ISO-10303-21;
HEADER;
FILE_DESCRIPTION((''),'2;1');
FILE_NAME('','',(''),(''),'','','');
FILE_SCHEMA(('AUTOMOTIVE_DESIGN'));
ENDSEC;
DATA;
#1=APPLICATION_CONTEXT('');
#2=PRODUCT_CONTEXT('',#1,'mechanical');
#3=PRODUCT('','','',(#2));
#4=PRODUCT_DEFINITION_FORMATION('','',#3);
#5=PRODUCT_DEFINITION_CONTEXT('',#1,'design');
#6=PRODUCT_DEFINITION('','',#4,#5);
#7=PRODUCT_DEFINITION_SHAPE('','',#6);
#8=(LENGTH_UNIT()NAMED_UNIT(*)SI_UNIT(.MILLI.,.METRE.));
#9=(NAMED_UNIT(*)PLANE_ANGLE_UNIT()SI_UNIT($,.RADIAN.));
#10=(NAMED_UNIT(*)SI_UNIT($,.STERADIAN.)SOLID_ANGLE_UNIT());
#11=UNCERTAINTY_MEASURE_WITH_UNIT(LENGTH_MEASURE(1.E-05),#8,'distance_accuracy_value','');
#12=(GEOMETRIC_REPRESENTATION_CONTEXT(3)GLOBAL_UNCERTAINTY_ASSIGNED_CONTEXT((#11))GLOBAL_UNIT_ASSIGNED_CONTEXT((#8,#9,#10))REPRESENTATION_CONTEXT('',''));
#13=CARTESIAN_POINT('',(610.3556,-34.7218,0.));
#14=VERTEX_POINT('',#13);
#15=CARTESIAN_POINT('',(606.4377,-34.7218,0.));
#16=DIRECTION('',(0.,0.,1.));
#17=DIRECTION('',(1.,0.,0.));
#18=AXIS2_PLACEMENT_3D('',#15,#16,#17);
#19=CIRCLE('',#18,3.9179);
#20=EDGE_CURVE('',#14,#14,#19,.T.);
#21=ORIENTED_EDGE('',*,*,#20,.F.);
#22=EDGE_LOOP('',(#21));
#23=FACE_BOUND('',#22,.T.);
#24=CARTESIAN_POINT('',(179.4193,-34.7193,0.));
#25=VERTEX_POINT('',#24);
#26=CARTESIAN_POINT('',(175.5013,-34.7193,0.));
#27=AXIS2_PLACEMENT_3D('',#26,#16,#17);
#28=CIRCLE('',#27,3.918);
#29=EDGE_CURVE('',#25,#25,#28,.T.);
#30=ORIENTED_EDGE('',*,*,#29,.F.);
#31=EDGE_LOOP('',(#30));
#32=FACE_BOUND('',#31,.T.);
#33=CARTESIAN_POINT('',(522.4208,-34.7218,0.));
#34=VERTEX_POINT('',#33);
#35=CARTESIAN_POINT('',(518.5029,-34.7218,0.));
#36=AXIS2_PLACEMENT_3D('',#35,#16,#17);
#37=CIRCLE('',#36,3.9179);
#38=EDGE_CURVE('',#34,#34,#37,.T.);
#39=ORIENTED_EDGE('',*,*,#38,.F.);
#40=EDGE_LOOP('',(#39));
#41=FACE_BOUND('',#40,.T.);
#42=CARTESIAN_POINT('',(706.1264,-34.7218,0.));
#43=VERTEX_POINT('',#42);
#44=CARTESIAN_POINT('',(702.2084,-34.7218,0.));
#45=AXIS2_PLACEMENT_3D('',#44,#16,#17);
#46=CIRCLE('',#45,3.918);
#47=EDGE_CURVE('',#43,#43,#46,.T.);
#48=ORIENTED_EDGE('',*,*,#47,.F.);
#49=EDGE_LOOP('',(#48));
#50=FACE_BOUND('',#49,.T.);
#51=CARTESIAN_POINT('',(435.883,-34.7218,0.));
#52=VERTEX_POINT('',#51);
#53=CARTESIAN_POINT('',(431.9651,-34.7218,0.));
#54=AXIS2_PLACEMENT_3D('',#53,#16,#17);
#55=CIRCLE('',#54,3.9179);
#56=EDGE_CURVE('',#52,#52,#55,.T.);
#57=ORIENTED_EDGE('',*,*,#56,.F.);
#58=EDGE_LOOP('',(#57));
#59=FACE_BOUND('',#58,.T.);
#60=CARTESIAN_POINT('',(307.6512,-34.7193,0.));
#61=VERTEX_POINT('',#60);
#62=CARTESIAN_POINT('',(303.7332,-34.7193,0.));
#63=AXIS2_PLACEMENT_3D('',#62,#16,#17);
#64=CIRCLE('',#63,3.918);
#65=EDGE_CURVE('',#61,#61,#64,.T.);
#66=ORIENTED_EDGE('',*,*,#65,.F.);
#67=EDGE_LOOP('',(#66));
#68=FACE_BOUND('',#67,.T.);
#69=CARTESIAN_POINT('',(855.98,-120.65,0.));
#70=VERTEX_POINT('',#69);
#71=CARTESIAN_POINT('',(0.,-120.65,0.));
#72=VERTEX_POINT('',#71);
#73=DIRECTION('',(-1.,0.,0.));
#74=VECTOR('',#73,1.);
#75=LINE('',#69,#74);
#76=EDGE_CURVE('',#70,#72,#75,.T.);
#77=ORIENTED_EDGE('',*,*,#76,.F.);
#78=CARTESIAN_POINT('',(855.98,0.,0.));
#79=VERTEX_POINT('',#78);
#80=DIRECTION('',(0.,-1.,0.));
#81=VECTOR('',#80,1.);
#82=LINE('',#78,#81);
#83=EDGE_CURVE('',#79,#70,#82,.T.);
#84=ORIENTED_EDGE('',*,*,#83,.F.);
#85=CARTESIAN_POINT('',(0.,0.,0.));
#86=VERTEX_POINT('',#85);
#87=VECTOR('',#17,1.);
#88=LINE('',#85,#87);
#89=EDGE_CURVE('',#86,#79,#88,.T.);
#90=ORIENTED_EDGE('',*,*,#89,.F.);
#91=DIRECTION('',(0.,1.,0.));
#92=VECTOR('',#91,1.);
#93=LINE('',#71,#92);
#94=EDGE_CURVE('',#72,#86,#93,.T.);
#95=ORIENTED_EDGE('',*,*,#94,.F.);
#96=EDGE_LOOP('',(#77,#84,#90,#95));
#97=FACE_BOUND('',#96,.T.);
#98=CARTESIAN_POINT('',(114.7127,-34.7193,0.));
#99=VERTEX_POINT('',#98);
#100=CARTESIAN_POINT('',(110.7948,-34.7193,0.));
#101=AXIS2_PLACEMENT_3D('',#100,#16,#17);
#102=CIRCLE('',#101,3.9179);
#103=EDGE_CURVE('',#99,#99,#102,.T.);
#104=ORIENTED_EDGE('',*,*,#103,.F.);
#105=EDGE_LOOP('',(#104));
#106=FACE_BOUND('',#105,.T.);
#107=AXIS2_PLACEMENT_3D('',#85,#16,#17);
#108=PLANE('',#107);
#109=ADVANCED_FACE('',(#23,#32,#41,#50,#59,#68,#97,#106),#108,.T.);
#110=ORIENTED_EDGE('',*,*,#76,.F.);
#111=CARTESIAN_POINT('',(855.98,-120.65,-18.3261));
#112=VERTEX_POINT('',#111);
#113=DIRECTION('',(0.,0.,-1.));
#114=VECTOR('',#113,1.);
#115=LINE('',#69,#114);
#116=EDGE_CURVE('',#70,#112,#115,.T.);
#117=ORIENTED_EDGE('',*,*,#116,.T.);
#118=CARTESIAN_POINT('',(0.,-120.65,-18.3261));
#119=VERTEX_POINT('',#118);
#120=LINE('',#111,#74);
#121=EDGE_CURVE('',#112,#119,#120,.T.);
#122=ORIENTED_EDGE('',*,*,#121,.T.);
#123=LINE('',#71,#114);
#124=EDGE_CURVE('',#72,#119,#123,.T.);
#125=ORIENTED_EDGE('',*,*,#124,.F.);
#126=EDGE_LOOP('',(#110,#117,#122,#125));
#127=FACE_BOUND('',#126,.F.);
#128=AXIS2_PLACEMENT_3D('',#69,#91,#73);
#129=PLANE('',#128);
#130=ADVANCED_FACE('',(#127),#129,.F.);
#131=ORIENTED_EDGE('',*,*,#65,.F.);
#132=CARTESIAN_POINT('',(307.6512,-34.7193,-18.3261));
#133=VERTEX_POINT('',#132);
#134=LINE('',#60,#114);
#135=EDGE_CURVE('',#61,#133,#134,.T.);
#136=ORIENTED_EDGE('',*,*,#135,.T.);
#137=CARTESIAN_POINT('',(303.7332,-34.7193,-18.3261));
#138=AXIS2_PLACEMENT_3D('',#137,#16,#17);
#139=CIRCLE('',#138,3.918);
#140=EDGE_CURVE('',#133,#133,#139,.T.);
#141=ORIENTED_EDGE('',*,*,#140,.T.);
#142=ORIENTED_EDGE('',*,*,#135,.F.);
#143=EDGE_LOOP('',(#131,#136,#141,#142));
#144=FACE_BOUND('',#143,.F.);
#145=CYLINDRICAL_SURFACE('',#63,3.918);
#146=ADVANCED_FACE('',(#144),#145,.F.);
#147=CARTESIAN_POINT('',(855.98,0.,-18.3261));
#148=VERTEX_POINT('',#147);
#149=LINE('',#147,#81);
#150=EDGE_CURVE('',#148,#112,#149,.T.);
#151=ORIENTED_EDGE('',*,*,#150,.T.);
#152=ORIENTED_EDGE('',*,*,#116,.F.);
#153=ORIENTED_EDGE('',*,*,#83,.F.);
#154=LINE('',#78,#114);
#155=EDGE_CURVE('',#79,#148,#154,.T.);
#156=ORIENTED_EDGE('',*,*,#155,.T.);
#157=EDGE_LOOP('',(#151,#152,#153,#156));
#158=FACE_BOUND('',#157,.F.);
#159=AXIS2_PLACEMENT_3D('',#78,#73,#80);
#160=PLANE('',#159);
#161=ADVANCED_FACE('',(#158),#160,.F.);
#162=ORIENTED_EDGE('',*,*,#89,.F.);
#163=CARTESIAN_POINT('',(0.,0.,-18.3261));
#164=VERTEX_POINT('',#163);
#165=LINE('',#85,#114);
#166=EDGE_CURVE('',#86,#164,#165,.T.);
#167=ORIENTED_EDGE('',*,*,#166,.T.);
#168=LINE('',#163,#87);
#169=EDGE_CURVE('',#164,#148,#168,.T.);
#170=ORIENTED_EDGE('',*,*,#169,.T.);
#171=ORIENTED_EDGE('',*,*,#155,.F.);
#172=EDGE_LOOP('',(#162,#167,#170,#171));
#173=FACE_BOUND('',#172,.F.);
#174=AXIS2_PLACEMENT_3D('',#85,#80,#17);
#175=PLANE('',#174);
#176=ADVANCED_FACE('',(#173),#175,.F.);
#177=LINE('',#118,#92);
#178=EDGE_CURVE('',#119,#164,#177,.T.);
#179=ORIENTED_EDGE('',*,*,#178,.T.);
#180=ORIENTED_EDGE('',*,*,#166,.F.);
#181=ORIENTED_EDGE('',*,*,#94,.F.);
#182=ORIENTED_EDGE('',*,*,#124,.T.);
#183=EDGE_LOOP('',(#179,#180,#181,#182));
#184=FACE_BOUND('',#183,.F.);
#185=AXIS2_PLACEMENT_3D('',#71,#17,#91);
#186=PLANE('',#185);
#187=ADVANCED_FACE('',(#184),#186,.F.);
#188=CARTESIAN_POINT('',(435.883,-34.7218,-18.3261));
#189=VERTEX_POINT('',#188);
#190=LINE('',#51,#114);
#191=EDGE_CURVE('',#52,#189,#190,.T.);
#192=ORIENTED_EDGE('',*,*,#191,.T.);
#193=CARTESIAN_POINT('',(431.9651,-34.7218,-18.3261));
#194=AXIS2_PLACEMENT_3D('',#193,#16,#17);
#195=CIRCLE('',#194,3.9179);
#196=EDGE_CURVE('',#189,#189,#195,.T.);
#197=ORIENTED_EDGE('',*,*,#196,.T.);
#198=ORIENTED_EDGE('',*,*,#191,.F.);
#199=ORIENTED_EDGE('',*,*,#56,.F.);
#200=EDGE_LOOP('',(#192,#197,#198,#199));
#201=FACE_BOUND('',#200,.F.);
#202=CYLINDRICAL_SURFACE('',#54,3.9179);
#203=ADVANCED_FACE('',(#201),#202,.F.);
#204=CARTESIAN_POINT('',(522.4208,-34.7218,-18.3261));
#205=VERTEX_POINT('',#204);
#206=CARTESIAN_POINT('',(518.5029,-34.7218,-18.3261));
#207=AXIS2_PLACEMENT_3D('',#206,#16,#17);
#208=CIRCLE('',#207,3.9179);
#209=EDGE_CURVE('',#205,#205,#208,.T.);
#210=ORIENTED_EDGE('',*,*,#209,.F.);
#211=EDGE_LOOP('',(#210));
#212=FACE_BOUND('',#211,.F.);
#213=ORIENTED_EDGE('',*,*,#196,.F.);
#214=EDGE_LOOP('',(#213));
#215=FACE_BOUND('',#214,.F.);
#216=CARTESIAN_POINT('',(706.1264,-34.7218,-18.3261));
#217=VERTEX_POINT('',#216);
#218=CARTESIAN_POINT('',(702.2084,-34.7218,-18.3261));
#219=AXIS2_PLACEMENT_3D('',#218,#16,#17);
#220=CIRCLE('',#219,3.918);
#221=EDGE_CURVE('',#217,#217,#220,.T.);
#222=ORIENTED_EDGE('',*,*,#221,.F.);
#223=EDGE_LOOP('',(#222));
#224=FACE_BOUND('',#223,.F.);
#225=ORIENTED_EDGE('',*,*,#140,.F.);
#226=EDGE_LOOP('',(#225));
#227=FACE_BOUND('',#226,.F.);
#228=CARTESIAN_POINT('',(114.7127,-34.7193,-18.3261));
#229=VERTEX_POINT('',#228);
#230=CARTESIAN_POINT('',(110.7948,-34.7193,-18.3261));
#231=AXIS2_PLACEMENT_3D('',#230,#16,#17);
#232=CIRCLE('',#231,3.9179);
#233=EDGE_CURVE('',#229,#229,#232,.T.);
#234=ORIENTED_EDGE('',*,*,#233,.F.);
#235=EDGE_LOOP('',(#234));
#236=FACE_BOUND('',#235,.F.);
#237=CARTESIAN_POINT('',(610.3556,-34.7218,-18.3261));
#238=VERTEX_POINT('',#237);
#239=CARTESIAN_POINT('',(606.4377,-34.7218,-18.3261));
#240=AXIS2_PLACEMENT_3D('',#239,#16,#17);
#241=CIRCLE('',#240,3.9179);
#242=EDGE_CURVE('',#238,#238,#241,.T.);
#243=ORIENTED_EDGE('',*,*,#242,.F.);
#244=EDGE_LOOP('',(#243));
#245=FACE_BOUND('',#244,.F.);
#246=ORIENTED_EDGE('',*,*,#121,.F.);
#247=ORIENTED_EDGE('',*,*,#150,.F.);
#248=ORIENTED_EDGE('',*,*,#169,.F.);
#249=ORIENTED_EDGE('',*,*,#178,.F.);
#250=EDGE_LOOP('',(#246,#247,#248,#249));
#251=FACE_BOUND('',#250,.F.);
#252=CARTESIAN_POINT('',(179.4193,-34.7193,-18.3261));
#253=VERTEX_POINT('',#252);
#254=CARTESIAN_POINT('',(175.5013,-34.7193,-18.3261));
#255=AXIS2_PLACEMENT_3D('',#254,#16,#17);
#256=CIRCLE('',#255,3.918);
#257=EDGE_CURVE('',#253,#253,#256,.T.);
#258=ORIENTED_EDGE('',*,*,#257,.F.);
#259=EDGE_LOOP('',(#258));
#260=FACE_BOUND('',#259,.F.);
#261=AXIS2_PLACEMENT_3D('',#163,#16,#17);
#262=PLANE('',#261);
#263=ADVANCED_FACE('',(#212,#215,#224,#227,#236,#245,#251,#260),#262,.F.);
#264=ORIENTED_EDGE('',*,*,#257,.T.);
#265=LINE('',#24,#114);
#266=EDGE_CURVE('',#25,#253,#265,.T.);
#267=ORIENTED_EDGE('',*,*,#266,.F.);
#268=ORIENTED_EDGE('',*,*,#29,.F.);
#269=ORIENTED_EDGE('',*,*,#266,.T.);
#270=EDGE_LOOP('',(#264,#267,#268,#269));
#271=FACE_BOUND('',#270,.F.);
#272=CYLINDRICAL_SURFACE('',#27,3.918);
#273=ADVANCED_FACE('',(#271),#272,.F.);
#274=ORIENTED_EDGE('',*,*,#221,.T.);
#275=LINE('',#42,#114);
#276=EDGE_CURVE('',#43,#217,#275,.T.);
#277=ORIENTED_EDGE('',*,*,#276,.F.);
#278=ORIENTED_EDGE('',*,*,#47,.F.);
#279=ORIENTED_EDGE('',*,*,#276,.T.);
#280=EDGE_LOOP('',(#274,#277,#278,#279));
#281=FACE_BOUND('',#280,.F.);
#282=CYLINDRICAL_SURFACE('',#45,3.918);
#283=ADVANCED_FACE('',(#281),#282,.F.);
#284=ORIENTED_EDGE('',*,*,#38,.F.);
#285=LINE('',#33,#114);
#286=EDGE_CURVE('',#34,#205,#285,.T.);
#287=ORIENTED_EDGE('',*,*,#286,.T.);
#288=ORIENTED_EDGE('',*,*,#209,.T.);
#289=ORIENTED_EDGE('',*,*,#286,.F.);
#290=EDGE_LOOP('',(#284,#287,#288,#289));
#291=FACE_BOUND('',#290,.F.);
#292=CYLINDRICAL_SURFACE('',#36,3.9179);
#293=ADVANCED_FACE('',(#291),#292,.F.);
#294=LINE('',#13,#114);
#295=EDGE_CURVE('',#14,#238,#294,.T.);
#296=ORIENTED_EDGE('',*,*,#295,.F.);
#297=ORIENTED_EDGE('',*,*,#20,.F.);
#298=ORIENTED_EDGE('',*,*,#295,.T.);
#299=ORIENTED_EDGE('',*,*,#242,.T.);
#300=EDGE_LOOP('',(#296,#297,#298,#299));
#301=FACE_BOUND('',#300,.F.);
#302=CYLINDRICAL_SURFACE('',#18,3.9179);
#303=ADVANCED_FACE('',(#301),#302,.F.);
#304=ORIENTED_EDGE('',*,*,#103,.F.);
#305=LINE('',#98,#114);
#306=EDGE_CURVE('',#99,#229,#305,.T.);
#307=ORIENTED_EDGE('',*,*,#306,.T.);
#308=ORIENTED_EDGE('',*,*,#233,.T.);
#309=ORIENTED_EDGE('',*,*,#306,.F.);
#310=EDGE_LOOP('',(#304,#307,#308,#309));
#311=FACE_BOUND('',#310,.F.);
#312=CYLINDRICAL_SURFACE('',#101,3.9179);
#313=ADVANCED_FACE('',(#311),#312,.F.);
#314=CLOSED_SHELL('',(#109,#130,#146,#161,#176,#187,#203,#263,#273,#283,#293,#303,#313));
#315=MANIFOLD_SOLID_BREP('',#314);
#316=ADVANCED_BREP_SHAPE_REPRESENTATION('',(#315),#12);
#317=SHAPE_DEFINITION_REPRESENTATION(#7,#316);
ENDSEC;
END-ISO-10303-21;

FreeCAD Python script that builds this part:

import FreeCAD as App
import Part
import Sketcher
Q = App.Units.Quantity


def add_polygon(sketch, points):
    """Adds a closed chain of lines whose ends are joined by coincident constraints."""
    first, n = sketch.GeometryCount, len(points)
    for a, b in zip(points, points[1:] + points[:1]):
        sketch.addGeometry(Part.LineSegment(App.Vector(*a, 0), App.Vector(*b, 0)), False)
    for i in range(n):
        sketch.addConstraint(Sketcher.Constraint("Coincident", first + i, 2, first + (i + 1) % n, 1))

doc = App.newDocument("Part")
body = doc.addObject("PartDesign::Body", "Body")

sketch1 = body.newObject("Sketcher::SketchObject", "Sketch")
sketch1.AttachmentSupport = (doc.getObject("XY_Plane"), [""])
sketch1.MapMode = "FlatFace"
add_polygon(sketch1, [(856, 0), (0, 0), (0, -121), (856, -121)])
sketch1.addConstraint([
    Sketcher.Constraint("Horizontal", 0),
    Sketcher.Constraint("Vertical", 1),
    Sketcher.Constraint("Horizontal", 2),
    Sketcher.Constraint("Vertical", 3),
    Sketcher.Constraint("Coincident", 0, 2, -1, 1),
    Sketcher.Constraint("DistanceX", 0, 2, 0, 1, Q("33.7 in")),
    Sketcher.Constraint("DistanceY", 1, 2, 1, 1, Q("4.75 in")),
])
pad1 = body.newObject("PartDesign::Pad", "Pad")
pad1.Profile = sketch1
pad1.Length = Q("0.7215 in")
pad1.Reversed = True

sketch2 = body.newObject("Sketcher::SketchObject", "Sketch001")
sketch2.AttachmentSupport = (doc.getObject("XY_Plane"), [""])
sketch2.MapMode = "FlatFace"
sketch2.addGeometry([
    Part.Circle(App.Vector(702.2, -34.7, 0), App.Vector(0, 0, 1), 3.9),
    Part.Circle(App.Vector(606.4, -34.7, 0), App.Vector(0, 0, 1), 3.9),
    Part.Circle(App.Vector(518.5, -34.7, 0), App.Vector(0, 0, 1), 3.9),
    Part.Circle(App.Vector(432, -34.7, 0), App.Vector(0, 0, 1), 3.9),
    Part.Circle(App.Vector(303.7, -34.7, 0), App.Vector(0, 0, 1), 3.9),
    Part.Circle(App.Vector(175.5, -34.7, 0), App.Vector(0, 0, 1), 3.9),
    Part.Circle(App.Vector(110.8, -34.7, 0), App.Vector(0, 0, 1), 3.9),
], False)
sketch2.addConstraint([
    Sketcher.Constraint("Equal", 0, 1),
    Sketcher.Constraint("Equal", 1, 2),
    Sketcher.Constraint("Equal", 2, 3),
    Sketcher.Constraint("Equal", 3, 4),
    Sketcher.Constraint("Equal", 4, 5),
    Sketcher.Constraint("Equal", 5, 6),
    Sketcher.Constraint("Horizontal", 0, 3, 1, 3),
    Sketcher.Constraint("Horizontal", 1, 3, 2, 3),
    Sketcher.Constraint("Horizontal", 2, 3, 3, 3),
    Sketcher.Constraint("Horizontal", 4, 3, 5, 3),
    Sketcher.Constraint("Horizontal", 5, 3, 6, 3),
    Sketcher.Constraint("Diameter", 0, Q("0.3085 in")),
    Sketcher.Constraint("DistanceX", 2, 3, 1, 3, Q("3.462 in")),
    Sketcher.Constraint("DistanceX", 3, 3, 2, 3, Q("3.407 in")),
    Sketcher.Constraint("DistanceX", 4, 3, 3, 3, Q("5.0485 in")),
    Sketcher.Constraint("DistanceX", 5, 3, 4, 3, Q("5.0485 in")),
    Sketcher.Constraint("DistanceX", -1, 1, 0, 3, Q("27.646 in")),
    Sketcher.Constraint("DistanceY", 0, 3, -1, 1, Q("1.367 in")),
    Sketcher.Constraint("DistanceX", -1, 1, 4, 3, Q("11.958 in")),
    Sketcher.Constraint("DistanceX", -1, 1, 6, 3, Q("4.362 in")),
    Sketcher.Constraint("DistanceY", 4, 3, -1, 1, Q("1.3669 in")),
])
pocket1 = body.newObject("PartDesign::Pocket", "Pocket")
pocket1.Profile = sketch2
pocket1.Length = Q("12 in")

doc.recompute()
